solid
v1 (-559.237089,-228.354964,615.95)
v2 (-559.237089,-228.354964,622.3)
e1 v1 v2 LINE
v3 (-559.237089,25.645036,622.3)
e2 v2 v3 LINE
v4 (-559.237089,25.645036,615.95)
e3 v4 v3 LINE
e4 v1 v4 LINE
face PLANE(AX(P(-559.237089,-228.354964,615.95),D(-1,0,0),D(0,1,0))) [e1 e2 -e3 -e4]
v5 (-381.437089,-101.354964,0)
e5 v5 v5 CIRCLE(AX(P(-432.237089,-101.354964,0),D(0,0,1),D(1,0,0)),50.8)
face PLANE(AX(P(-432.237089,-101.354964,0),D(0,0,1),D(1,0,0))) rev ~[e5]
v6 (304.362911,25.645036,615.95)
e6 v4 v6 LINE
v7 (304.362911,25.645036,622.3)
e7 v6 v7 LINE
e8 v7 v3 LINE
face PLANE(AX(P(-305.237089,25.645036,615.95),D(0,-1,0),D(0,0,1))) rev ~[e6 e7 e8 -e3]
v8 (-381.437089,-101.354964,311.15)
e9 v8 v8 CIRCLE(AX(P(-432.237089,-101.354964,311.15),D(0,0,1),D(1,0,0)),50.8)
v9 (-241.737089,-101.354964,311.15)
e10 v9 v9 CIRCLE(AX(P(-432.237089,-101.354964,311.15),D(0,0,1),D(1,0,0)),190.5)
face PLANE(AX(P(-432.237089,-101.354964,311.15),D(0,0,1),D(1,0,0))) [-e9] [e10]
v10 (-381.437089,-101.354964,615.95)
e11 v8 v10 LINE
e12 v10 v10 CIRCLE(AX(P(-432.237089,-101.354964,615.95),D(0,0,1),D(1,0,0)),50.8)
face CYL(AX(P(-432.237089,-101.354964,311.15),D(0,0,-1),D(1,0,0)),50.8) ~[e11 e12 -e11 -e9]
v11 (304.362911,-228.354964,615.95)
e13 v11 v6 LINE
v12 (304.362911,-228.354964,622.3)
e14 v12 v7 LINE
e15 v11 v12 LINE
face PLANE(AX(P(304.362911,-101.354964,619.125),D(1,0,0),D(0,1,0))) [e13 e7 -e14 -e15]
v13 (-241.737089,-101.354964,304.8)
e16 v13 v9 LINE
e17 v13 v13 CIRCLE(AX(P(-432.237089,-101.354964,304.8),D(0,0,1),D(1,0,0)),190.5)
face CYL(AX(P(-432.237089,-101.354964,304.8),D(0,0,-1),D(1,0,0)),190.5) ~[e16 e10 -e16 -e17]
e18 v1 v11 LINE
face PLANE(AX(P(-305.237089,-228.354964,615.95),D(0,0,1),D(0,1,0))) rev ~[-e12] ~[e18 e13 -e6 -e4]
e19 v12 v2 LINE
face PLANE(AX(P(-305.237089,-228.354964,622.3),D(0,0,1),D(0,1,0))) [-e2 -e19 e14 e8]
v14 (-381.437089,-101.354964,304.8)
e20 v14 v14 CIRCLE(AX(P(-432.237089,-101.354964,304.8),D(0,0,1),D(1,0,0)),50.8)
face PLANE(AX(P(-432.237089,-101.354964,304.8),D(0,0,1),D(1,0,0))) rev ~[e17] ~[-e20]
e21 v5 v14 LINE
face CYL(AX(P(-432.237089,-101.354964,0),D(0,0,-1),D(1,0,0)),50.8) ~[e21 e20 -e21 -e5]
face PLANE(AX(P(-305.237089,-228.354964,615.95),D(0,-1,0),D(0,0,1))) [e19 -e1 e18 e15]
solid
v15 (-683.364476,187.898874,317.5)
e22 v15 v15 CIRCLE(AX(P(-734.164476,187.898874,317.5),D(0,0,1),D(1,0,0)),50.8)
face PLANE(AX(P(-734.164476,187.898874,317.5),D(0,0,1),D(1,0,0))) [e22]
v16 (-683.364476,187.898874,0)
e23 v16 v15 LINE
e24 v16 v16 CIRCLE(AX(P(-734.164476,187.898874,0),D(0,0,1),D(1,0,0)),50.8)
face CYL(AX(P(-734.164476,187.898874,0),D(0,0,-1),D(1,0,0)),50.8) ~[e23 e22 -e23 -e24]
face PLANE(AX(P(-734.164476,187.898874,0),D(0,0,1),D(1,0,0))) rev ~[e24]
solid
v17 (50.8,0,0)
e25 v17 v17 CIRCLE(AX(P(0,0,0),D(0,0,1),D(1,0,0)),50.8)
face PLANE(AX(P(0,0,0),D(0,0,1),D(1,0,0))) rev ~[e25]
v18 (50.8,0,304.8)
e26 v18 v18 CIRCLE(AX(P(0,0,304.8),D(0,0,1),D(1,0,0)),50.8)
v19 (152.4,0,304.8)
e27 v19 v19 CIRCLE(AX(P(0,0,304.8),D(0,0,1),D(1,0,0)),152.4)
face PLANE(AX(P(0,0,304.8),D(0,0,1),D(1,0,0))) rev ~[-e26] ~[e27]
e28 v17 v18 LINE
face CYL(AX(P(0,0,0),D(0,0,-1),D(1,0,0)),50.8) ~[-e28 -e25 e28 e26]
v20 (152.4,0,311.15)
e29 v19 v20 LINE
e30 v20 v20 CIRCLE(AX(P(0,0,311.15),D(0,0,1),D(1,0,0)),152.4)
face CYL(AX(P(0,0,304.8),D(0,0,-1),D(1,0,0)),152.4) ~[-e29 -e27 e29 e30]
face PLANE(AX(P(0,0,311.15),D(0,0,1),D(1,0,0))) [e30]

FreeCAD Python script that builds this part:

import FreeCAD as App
import Part
import Sketcher

V = App.Vector
Q = App.Units.Quantity


def add_polygon(sketch, points):
    """Adds a closed chain of lines whose ends are joined by coincident constraints."""
    first, n = sketch.GeometryCount, len(points)
    for a, b in zip(points, points[1:] + points[:1]):
        sketch.addGeometry(Part.LineSegment(App.Vector(*a, 0), App.Vector(*b, 0)), False)
    for i in range(n):
        sketch.addConstraint(Sketcher.Constraint("Coincident", first + i, 2, first + (i + 1) % n, 1))

doc = App.newDocument("Part")
body = doc.addObject("PartDesign::Body", "Body")

# Sketch on XY plane
sketch1 = body.newObject("Sketcher::SketchObject", "Sketch")
sketch1.AttachmentSupport = (doc.getObject("XY_Plane"), [""])
sketch1.MapMode = "FlatFace"
sketch1.addGeometry(Part.Circle(V(0, 0, 0), V(0, 0, 1), 50.8), False)
sketch1.addConstraint(Sketcher.Constraint("Coincident", 0, 3, -1, 1))
sketch1.addConstraint(Sketcher.Constraint("Diameter", 0, Q("4 in")))
pad1 = body.newObject("PartDesign::Pad", "Pad")
pad1.Profile = sketch1
pad1.Length = Q("12 in")

# Sketch on XY plane
sketch2 = body.newObject("Sketcher::SketchObject", "Sketch001")
sketch2.AttachmentSupport = (doc.getObject("XY_Plane"), [""])
sketch2.MapMode = "FlatFace"
sketch2.AttachmentOffset = App.Placement(V(0, 0, 12 * 25.4), App.Rotation())
sketch2.addGeometry(Part.Circle(V(0, 0, 0), V(0, 0, 1), 152.4), False)
sketch2.addConstraint(Sketcher.Constraint("Coincident", 0, 3, -1, 1))
sketch2.addConstraint(Sketcher.Constraint("Diameter", 0, Q("12 in")))
pad2 = body.newObject("PartDesign::Pad", "Pad001")
pad2.Profile = sketch2
pad2.Length = Q("0.25 in")
body2 = doc.addObject("PartDesign::Body", "Body001")

# Sketch on XY plane
sketch3 = body2.newObject("Sketcher::SketchObject", "Sketch002")
sketch3.AttachmentSupport = (doc.getObject("XY_Plane001"), [""])
sketch3.MapMode = "FlatFace"
sketch3.addGeometry(Part.Circle(V(-432.237089, -101.354964, 0), V(0, 0, 1), 50.8), False)
sketch3.addConstraint(Sketcher.Constraint("Diameter", 0, Q("4 in")))
sketch3.addConstraint(Sketcher.Constraint("DistanceX", 0, 3, -1, 1, 432.237089))
sketch3.addConstraint(Sketcher.Constraint("DistanceY", 0, 3, -1, 1, 101.354964))
pad3 = body2.newObject("PartDesign::Pad", "Pad002")
pad3.Profile = sketch3
pad3.Length = Q("12 in")

# Sketch on XY plane
sketch4 = body2.newObject("Sketcher::SketchObject", "Sketch003")
sketch4.AttachmentSupport = (doc.getObject("XY_Plane001"), [""])
sketch4.MapMode = "FlatFace"
sketch4.AttachmentOffset = App.Placement(V(0, 0, 12 * 25.4), App.Rotation())
sketch4.addGeometry(Part.Circle(V(-432.237089, -101.354964, 0), V(0, 0, 1), 190.5), False)
sketch4.addConstraint(Sketcher.Constraint("Diameter", 0, Q("15 in")))
sketch4.addConstraint(Sketcher.Constraint("DistanceX", 0, 3, -1, 1, 432.237089))
sketch4.addConstraint(Sketcher.Constraint("DistanceY", 0, 3, -1, 1, 101.354964))
pad4 = body2.newObject("PartDesign::Pad", "Pad003")
pad4.Profile = sketch4
pad4.Length = Q("0.25 in")

# Sketch on XY plane
sketch5 = body2.newObject("Sketcher::SketchObject", "Sketch004")
sketch5.AttachmentSupport = (doc.getObject("XY_Plane001"), [""])
sketch5.MapMode = "FlatFace"
sketch5.AttachmentOffset = App.Placement(V(0, 0, 12.25 * 25.4), App.Rotation())
sketch5.addGeometry(Part.Circle(V(-432.237089, -101.354964, 0), V(0, 0, 1), 50.8), False)
sketch5.addConstraint(Sketcher.Constraint("Diameter", 0, Q("4 in")))
sketch5.addConstraint(Sketcher.Constraint("DistanceX", 0, 3, -1, 1, 432.237089))
sketch5.addConstraint(Sketcher.Constraint("DistanceY", 0, 3, -1, 1, 101.354964))
pad5 = body2.newObject("PartDesign::Pad", "Pad004")
pad5.Profile = sketch5
pad5.Length = Q("12 in")

# Sketch on XY plane
sketch6 = body2.newObject("Sketcher::SketchObject", "Sketch005")
sketch6.AttachmentSupport = (doc.getObject("XY_Plane001"), [""])
sketch6.MapMode = "FlatFace"
sketch6.AttachmentOffset = App.Placement(V(0, 0, 24.25 * 25.4), App.Rotation())
add_polygon(sketch6, [(-559.237089, 25.645036), (-559.237089, -228.354964), (-305.237089, -228.354964), (-305.237089, 25.645036)])  # lines 0-3
sketch6.addConstraint(Sketcher.Constraint("Vertical", 0))
sketch6.addConstraint(Sketcher.Constraint("Horizontal", 1))
sketch6.addConstraint(Sketcher.Constraint("Vertical", 2))
sketch6.addConstraint(Sketcher.Constraint("Horizontal", 3))
sketch6.addConstraint(Sketcher.Constraint("Equal", 3, 0))
sketch6.addConstraint(Sketcher.Constraint("DistanceX", 1, 1, 1, 2, Q("10 in")))
sketch6.addConstraint(Sketcher.Constraint("DistanceX", 0, 2, -1, 1, 559.237089))
sketch6.addConstraint(Sketcher.Constraint("DistanceY", 0, 2, -1, 1, 228.354964))
pad6 = body2.newObject("PartDesign::Pad", "Pad005")
pad6.Profile = sketch6
pad6.Length = Q("0.25 in")

# Sketch on YZ plane
sketch7 = body2.newObject("Sketcher::SketchObject", "Sketch006")
sketch7.AttachmentSupport = (doc.getObject("YZ_Plane001"), [""])
sketch7.MapMode = "FlatFace"
sketch7.AttachmentOffset = App.Placement(V(0, 0, -305.237089), App.Rotation())
add_polygon(sketch7, [(-228.354964, 622.3), (-228.354964, 615.95), (25.645036, 615.95), (25.645036, 622.3)])  # lines 0-3
sketch7.addConstraint(Sketcher.Constraint("Vertical", 0))
sketch7.addConstraint(Sketcher.Constraint("Horizontal", 1))
sketch7.addConstraint(Sketcher.Constraint("Vertical", 2))
sketch7.addConstraint(Sketcher.Constraint("Horizontal", 3))
sketch7.addConstraint(Sketcher.Constraint("DistanceX", 1, 1, 1, 2, Q("10 in")))
sketch7.addConstraint(Sketcher.Constraint("DistanceY", 0, 2, 0, 1, Q("0.25 in")))
sketch7.addConstraint(Sketcher.Constraint("DistanceY", -1, 1, 2, 2, Q("24.5 in")))
sketch7.addConstraint(Sketcher.Constraint("DistanceX", 0, 2, -1, 1, 228.354964))
pad7 = body2.newObject("PartDesign::Pad", "Pad006")
pad7.Profile = sketch7
pad7.Length = Q("24 in")
body3 = doc.addObject("PartDesign::Body", "Body002")

# Sketch on XY plane
sketch8 = body3.newObject("Sketcher::SketchObject", "Sketch007")
sketch8.AttachmentSupport = (doc.getObject("XY_Plane002"), [""])
sketch8.MapMode = "FlatFace"
sketch8.addGeometry(Part.Circle(V(-734.164476, 187.898874, 0), V(0, 0, 1), 50.8), False)
sketch8.addConstraint(Sketcher.Constraint("Diameter", 0, Q("4 in")))
sketch8.addConstraint(Sketcher.Constraint("DistanceX", 0, 3, -1, 1, 734.164476))
sketch8.addConstraint(Sketcher.Constraint("DistanceY", -1, 1, 0, 3, 187.898874))
pad8 = body3.newObject("PartDesign::Pad", "Pad007")
pad8.Profile = sketch8
pad8.Length = Q("12.5 in")

doc.recompute()
